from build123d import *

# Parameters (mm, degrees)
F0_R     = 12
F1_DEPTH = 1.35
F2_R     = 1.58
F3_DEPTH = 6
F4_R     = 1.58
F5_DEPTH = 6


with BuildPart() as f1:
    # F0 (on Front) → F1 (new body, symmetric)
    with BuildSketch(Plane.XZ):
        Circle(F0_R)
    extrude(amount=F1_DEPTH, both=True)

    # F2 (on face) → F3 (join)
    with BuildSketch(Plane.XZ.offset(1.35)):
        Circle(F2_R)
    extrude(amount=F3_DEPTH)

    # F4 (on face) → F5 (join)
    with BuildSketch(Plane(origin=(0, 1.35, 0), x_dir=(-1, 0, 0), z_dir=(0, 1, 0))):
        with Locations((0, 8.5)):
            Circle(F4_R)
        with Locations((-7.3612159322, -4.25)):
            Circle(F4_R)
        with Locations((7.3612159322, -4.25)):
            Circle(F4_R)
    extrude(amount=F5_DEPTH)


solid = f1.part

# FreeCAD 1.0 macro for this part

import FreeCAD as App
import Part
import Sketcher

V = App.Vector

doc = App.newDocument("Part")
body = doc.addObject("PartDesign::Body", "Body")

# Sketch on XZ plane
sketch1 = body.newObject("Sketcher::SketchObject", "Sketch")
sketch1.AttachmentSupport = (doc.getObject("XZ_Plane"), [""])
sketch1.MapMode = "FlatFace"
sketch1.addGeometry(Part.Circle(V(0, 0, 0), V(0, 0, 1), 12), False)
sketch1.addConstraint(Sketcher.Constraint("Coincident", 0, 3, -1, 1))
sketch1.addConstraint(Sketcher.Constraint("Diameter", 0, 24.0))
pad1 = body.newObject("PartDesign::Pad", "Pad")
pad1.Profile = sketch1
pad1.Length = 2.7
pad1.Midplane = True

# Sketch on XZ plane
sketch2 = body.newObject("Sketcher::SketchObject", "Sketch001")
sketch2.AttachmentSupport = (doc.getObject("XZ_Plane"), [""])
sketch2.MapMode = "FlatFace"
sketch2.AttachmentOffset = App.Placement(V(0, 0, 1.35), App.Rotation())
sketch2.addGeometry(Part.Circle(V(0, 0, 0), V(0, 0, 1), 1.58), False)
sketch2.addConstraint(Sketcher.Constraint("Coincident", 0, 3, -1, 1))
sketch2.addConstraint(Sketcher.Constraint("Diameter", 0, 3.16))
pad2 = body.newObject("PartDesign::Pad", "Pad001")
pad2.Profile = sketch2
pad2.Length = 6

# Sketch on XZ plane
sketch3 = body.newObject("Sketcher::SketchObject", "Sketch002")
sketch3.AttachmentSupport = (doc.getObject("XZ_Plane"), [""])
sketch3.MapMode = "FlatFace"
sketch3.AttachmentOffset = App.Placement(V(0, 0, -1.35), App.Rotation())
sketch3.addGeometry(Part.Circle(V(0, 8.5, 0), V(0, 0, 1), 1.58), False)
sketch3.addGeometry(Part.Circle(V(7.361216, -4.25, 0), V(0, 0, 1), 1.58), False)
sketch3.addGeometry(Part.Circle(V(-7.361216, -4.25, 0), V(0, 0, 1), 1.58), False)
sketch3.addConstraint(Sketcher.Constraint("Equal", 0, 1))
sketch3.addConstraint(Sketcher.Constraint("Equal", 1, 2))
sketch3.addConstraint(Sketcher.Constraint("Symmetric", 1, 3, 2, 3, -2))
sketch3.addConstraint(Sketcher.Constraint("PointOnObject", 0, 3, -2))
sketch3.addConstraint(Sketcher.Constraint("Diameter", 0, 3.16))
sketch3.addConstraint(Sketcher.Constraint("DistanceY", -1, 1, 0, 3, 8.5))
sketch3.addConstraint(Sketcher.Constraint("DistanceY", 1, 3, -1, 1, 4.25))
sketch3.addConstraint(Sketcher.Constraint("DistanceX", 2, 3, 1, 3, 14.722432))
pad3 = body.newObject("PartDesign::Pad", "Pad002")
pad3.Profile = sketch3
pad3.Length = 6
pad3.Reversed = True

doc.recompute()
